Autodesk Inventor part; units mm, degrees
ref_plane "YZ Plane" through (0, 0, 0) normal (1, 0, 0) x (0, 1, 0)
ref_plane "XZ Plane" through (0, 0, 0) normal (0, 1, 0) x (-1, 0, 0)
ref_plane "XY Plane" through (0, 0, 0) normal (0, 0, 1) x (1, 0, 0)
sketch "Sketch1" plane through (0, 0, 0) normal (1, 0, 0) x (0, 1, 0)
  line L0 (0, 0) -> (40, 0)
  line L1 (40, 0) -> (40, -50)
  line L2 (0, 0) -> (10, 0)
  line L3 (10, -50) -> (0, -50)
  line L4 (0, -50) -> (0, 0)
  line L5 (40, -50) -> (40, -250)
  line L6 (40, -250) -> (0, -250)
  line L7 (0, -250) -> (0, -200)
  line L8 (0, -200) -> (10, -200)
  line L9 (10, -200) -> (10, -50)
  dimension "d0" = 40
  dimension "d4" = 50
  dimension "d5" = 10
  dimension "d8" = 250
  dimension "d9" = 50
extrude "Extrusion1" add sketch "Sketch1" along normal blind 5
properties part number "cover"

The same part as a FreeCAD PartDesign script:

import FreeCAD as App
import Part
import Sketcher
from FreeCAD import Vector

doc = App.newDocument("Part")
params = doc.addObject("Spreadsheet::Sheet", "Params")
for row, (alias, value) in enumerate([
    ("sketch1_width", "40 mm"),
    ("sketch1_width2", "10 mm"),
    ("sketch1_height", "50 mm"),
    ("sketch1_height2", "250 mm"),
    ("pad1_length", "5 mm"),
], start=1):
    params.set(f"A{row}", alias)
    params.set(f"B{row}", "=" + value)
    params.setAlias(f"B{row}", alias)

body = doc.addObject("PartDesign::Body", "Body")

# Sketch on YZ plane
sketch1 = body.newObject("Sketcher::SketchObject", "Sketch")
sketch1.AttachmentSupport = (doc.getObject("YZ_Plane"), [""])
sketch1.MapMode = "FlatFace"
sketch1.addGeometry([
    Part.LineSegment(Vector(40, 0, 0), Vector(0, 0, 0)),  # 0
    Part.LineSegment(Vector(0, 0, 0), Vector(0, -50, 0)),  # 1
    Part.LineSegment(Vector(0, -50, 0), Vector(10, -50, 0)),  # 2
    Part.LineSegment(Vector(10, -50, 0), Vector(10, -200, 0)),  # 3
    Part.LineSegment(Vector(10, -200, 0), Vector(0, -200, 0)),  # 4
    Part.LineSegment(Vector(0, -200, 0), Vector(0, -250, 0)),  # 5
    Part.LineSegment(Vector(0, -250, 0), Vector(40, -250, 0)),  # 6
    Part.LineSegment(Vector(40, -250, 0), Vector(40, 0, 0)),  # 7
], False)
sketch1.addConstraint([
    Sketcher.Constraint("Coincident", 0, 2, 1, 1),
    Sketcher.Constraint("Coincident", 1, 2, 2, 1),
    Sketcher.Constraint("Coincident", 2, 2, 3, 1),
    Sketcher.Constraint("Coincident", 3, 2, 4, 1),
    Sketcher.Constraint("Coincident", 4, 2, 5, 1),
    Sketcher.Constraint("Coincident", 5, 2, 6, 1),
    Sketcher.Constraint("Coincident", 6, 2, 7, 1),
    Sketcher.Constraint("Coincident", 7, 2, 0, 1),
    Sketcher.Constraint("Horizontal", 0),
    Sketcher.Constraint("Vertical", 1),
    Sketcher.Constraint("Horizontal", 2),
    Sketcher.Constraint("Vertical", 3),
    Sketcher.Constraint("Horizontal", 4),
    Sketcher.Constraint("Vertical", 5),
    Sketcher.Constraint("Horizontal", 6),
    Sketcher.Constraint("Vertical", 7),
    Sketcher.Constraint("Coincident", 0, 2, -1, 1),
    Sketcher.Constraint("PointOnObject", 4, 2, -2),
    Sketcher.Constraint("Equal", 1, 5),
    Sketcher.Constraint("DistanceX", 0, 2, 0, 1, 40.0),
    Sketcher.Constraint("DistanceX", 2, 1, 2, 2, 10.0),
    Sketcher.Constraint("DistanceY", 1, 2, 1, 1, 50.0),
    Sketcher.Constraint("DistanceY", 7, 1, 7, 2, 250.0),
])
sketch1.setExpression("Constraints[19]", "Params.sketch1_width")
sketch1.setExpression("Constraints[20]", "Params.sketch1_width2")
sketch1.setExpression("Constraints[21]", "Params.sketch1_height")
sketch1.setExpression("Constraints[22]", "Params.sketch1_height2")
pad1 = body.newObject("PartDesign::Pad", "Pad")
pad1.Profile = sketch1
pad1.setExpression("Length", "Params.pad1_length")

doc.recompute()
